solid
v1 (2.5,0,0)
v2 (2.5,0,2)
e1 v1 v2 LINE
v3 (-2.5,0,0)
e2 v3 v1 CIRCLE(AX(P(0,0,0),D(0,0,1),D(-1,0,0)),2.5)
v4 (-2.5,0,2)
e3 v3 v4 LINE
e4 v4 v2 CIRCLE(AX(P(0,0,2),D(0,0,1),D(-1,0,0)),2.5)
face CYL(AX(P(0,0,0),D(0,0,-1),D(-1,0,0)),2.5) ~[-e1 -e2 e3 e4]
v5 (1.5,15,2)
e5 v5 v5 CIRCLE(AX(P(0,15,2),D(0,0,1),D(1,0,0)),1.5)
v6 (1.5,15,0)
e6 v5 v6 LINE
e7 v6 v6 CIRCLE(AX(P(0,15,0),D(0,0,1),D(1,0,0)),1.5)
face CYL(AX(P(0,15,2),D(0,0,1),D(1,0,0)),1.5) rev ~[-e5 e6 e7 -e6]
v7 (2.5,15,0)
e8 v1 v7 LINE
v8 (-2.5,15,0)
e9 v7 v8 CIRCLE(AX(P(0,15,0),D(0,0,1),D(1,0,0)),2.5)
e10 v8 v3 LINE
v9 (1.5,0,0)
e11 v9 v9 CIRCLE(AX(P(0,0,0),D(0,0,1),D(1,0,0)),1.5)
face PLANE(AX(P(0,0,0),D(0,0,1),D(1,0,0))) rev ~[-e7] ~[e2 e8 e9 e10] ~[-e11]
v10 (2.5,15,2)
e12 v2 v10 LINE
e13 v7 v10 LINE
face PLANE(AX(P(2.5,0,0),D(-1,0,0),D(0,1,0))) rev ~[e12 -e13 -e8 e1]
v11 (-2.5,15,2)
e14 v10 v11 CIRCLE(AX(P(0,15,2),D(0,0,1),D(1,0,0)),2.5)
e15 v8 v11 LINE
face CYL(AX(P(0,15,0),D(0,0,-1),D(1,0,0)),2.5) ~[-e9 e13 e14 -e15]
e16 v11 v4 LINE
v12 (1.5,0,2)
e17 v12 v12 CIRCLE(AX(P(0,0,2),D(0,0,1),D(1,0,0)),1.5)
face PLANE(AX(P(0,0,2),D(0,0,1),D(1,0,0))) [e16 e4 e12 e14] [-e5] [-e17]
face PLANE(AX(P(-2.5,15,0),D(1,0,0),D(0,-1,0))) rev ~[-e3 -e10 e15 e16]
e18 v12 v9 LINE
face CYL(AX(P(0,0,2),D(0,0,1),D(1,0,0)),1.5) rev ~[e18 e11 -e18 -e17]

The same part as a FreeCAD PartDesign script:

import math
import FreeCAD as App
import Part
import Sketcher
from FreeCAD import Vector

doc = App.newDocument("Part")
params = doc.addObject("Spreadsheet::Sheet", "Params")
for row, (alias, value) in enumerate([
    ("sketch1_radius", "2.5 mm"),
    ("sketch1_height", "15 mm"),
    ("pad1_length", "2 mm"),
    ("sketch2_diameter", "3 mm"),
    ("pocket1_length", "3 mm"),
], start=1):
    params.set(f"A{row}", alias)
    params.set(f"B{row}", "=" + value)
    params.setAlias(f"B{row}", alias)

body = doc.addObject("PartDesign::Body", "Body")

sketch1 = body.newObject("Sketcher::SketchObject", "Sketch")
sketch1.AttachmentSupport = (doc.getObject("XY_Plane"), [""])
sketch1.MapMode = "FlatFace"
sketch1.addGeometry([
    Part.ArcOfCircle(Part.Circle(Vector(0, 0, 0), Vector(0, 0, 1), 2.5), math.radians(180), math.radians(360)),
    Part.LineSegment(Vector(2.5, 0, 0), Vector(2.5, 15, 0)),
    Part.ArcOfCircle(Part.Circle(Vector(0, 15, 0), Vector(0, 0, 1), 2.5), math.radians(0), math.radians(180)),
    Part.LineSegment(Vector(-2.5, 15, 0), Vector(-2.5, 0, 0)),
], False)
sketch1.addConstraint([
    Sketcher.Constraint("Tangent", 0, 2, 1, 1),
    Sketcher.Constraint("Tangent", 1, 2, 2, 1),
    Sketcher.Constraint("Tangent", 2, 2, 3, 1),
    Sketcher.Constraint("Tangent", 3, 2, 0, 1),
    Sketcher.Constraint("Vertical", 1),
    Sketcher.Constraint("Vertical", 3),
    Sketcher.Constraint("Coincident", 0, 3, -1, 1),
    Sketcher.Constraint("Radius", 0, 2.5),
    Sketcher.Constraint("DistanceY", 1, 1, 1, 2, 15.0),
])
sketch1.setExpression("Constraints[7]", "Params.sketch1_radius")
sketch1.setExpression("Constraints[8]", "Params.sketch1_height")
pad1 = body.newObject("PartDesign::Pad", "Pad")
pad1.Profile = sketch1
pad1.setExpression("Length", "Params.pad1_length")

sketch2 = body.newObject("Sketcher::SketchObject", "Sketch001")
sketch2.AttachmentSupport = (doc.getObject("XY_Plane"), [""])
sketch2.MapMode = "FlatFace"
sketch2.AttachmentOffset = App.Placement(Vector(0, 0, 2), App.Rotation())
sketch2.addGeometry([
    Part.Circle(Vector(0, 0, 0), Vector(0, 0, 1), 1.5),
    Part.Circle(Vector(0, 15, 0), Vector(0, 0, 1), 1.5),
], False)
sketch2.addConstraint([
    Sketcher.Constraint("Coincident", 0, 3, -1, 1),
    Sketcher.Constraint("Equal", 0, 1),
    Sketcher.Constraint("PointOnObject", 1, 3, -2),
    Sketcher.Constraint("Diameter", 0, 3.0),
    Sketcher.Constraint("DistanceY", -1, 1, 1, 3, 15.0),
])
sketch2.setExpression("Constraints[3]", "Params.sketch2_diameter")
pocket1 = body.newObject("PartDesign::Pocket", "Pocket")
pocket1.Profile = sketch2
pocket1.setExpression("Length", "Params.pocket1_length")

doc.recompute()
